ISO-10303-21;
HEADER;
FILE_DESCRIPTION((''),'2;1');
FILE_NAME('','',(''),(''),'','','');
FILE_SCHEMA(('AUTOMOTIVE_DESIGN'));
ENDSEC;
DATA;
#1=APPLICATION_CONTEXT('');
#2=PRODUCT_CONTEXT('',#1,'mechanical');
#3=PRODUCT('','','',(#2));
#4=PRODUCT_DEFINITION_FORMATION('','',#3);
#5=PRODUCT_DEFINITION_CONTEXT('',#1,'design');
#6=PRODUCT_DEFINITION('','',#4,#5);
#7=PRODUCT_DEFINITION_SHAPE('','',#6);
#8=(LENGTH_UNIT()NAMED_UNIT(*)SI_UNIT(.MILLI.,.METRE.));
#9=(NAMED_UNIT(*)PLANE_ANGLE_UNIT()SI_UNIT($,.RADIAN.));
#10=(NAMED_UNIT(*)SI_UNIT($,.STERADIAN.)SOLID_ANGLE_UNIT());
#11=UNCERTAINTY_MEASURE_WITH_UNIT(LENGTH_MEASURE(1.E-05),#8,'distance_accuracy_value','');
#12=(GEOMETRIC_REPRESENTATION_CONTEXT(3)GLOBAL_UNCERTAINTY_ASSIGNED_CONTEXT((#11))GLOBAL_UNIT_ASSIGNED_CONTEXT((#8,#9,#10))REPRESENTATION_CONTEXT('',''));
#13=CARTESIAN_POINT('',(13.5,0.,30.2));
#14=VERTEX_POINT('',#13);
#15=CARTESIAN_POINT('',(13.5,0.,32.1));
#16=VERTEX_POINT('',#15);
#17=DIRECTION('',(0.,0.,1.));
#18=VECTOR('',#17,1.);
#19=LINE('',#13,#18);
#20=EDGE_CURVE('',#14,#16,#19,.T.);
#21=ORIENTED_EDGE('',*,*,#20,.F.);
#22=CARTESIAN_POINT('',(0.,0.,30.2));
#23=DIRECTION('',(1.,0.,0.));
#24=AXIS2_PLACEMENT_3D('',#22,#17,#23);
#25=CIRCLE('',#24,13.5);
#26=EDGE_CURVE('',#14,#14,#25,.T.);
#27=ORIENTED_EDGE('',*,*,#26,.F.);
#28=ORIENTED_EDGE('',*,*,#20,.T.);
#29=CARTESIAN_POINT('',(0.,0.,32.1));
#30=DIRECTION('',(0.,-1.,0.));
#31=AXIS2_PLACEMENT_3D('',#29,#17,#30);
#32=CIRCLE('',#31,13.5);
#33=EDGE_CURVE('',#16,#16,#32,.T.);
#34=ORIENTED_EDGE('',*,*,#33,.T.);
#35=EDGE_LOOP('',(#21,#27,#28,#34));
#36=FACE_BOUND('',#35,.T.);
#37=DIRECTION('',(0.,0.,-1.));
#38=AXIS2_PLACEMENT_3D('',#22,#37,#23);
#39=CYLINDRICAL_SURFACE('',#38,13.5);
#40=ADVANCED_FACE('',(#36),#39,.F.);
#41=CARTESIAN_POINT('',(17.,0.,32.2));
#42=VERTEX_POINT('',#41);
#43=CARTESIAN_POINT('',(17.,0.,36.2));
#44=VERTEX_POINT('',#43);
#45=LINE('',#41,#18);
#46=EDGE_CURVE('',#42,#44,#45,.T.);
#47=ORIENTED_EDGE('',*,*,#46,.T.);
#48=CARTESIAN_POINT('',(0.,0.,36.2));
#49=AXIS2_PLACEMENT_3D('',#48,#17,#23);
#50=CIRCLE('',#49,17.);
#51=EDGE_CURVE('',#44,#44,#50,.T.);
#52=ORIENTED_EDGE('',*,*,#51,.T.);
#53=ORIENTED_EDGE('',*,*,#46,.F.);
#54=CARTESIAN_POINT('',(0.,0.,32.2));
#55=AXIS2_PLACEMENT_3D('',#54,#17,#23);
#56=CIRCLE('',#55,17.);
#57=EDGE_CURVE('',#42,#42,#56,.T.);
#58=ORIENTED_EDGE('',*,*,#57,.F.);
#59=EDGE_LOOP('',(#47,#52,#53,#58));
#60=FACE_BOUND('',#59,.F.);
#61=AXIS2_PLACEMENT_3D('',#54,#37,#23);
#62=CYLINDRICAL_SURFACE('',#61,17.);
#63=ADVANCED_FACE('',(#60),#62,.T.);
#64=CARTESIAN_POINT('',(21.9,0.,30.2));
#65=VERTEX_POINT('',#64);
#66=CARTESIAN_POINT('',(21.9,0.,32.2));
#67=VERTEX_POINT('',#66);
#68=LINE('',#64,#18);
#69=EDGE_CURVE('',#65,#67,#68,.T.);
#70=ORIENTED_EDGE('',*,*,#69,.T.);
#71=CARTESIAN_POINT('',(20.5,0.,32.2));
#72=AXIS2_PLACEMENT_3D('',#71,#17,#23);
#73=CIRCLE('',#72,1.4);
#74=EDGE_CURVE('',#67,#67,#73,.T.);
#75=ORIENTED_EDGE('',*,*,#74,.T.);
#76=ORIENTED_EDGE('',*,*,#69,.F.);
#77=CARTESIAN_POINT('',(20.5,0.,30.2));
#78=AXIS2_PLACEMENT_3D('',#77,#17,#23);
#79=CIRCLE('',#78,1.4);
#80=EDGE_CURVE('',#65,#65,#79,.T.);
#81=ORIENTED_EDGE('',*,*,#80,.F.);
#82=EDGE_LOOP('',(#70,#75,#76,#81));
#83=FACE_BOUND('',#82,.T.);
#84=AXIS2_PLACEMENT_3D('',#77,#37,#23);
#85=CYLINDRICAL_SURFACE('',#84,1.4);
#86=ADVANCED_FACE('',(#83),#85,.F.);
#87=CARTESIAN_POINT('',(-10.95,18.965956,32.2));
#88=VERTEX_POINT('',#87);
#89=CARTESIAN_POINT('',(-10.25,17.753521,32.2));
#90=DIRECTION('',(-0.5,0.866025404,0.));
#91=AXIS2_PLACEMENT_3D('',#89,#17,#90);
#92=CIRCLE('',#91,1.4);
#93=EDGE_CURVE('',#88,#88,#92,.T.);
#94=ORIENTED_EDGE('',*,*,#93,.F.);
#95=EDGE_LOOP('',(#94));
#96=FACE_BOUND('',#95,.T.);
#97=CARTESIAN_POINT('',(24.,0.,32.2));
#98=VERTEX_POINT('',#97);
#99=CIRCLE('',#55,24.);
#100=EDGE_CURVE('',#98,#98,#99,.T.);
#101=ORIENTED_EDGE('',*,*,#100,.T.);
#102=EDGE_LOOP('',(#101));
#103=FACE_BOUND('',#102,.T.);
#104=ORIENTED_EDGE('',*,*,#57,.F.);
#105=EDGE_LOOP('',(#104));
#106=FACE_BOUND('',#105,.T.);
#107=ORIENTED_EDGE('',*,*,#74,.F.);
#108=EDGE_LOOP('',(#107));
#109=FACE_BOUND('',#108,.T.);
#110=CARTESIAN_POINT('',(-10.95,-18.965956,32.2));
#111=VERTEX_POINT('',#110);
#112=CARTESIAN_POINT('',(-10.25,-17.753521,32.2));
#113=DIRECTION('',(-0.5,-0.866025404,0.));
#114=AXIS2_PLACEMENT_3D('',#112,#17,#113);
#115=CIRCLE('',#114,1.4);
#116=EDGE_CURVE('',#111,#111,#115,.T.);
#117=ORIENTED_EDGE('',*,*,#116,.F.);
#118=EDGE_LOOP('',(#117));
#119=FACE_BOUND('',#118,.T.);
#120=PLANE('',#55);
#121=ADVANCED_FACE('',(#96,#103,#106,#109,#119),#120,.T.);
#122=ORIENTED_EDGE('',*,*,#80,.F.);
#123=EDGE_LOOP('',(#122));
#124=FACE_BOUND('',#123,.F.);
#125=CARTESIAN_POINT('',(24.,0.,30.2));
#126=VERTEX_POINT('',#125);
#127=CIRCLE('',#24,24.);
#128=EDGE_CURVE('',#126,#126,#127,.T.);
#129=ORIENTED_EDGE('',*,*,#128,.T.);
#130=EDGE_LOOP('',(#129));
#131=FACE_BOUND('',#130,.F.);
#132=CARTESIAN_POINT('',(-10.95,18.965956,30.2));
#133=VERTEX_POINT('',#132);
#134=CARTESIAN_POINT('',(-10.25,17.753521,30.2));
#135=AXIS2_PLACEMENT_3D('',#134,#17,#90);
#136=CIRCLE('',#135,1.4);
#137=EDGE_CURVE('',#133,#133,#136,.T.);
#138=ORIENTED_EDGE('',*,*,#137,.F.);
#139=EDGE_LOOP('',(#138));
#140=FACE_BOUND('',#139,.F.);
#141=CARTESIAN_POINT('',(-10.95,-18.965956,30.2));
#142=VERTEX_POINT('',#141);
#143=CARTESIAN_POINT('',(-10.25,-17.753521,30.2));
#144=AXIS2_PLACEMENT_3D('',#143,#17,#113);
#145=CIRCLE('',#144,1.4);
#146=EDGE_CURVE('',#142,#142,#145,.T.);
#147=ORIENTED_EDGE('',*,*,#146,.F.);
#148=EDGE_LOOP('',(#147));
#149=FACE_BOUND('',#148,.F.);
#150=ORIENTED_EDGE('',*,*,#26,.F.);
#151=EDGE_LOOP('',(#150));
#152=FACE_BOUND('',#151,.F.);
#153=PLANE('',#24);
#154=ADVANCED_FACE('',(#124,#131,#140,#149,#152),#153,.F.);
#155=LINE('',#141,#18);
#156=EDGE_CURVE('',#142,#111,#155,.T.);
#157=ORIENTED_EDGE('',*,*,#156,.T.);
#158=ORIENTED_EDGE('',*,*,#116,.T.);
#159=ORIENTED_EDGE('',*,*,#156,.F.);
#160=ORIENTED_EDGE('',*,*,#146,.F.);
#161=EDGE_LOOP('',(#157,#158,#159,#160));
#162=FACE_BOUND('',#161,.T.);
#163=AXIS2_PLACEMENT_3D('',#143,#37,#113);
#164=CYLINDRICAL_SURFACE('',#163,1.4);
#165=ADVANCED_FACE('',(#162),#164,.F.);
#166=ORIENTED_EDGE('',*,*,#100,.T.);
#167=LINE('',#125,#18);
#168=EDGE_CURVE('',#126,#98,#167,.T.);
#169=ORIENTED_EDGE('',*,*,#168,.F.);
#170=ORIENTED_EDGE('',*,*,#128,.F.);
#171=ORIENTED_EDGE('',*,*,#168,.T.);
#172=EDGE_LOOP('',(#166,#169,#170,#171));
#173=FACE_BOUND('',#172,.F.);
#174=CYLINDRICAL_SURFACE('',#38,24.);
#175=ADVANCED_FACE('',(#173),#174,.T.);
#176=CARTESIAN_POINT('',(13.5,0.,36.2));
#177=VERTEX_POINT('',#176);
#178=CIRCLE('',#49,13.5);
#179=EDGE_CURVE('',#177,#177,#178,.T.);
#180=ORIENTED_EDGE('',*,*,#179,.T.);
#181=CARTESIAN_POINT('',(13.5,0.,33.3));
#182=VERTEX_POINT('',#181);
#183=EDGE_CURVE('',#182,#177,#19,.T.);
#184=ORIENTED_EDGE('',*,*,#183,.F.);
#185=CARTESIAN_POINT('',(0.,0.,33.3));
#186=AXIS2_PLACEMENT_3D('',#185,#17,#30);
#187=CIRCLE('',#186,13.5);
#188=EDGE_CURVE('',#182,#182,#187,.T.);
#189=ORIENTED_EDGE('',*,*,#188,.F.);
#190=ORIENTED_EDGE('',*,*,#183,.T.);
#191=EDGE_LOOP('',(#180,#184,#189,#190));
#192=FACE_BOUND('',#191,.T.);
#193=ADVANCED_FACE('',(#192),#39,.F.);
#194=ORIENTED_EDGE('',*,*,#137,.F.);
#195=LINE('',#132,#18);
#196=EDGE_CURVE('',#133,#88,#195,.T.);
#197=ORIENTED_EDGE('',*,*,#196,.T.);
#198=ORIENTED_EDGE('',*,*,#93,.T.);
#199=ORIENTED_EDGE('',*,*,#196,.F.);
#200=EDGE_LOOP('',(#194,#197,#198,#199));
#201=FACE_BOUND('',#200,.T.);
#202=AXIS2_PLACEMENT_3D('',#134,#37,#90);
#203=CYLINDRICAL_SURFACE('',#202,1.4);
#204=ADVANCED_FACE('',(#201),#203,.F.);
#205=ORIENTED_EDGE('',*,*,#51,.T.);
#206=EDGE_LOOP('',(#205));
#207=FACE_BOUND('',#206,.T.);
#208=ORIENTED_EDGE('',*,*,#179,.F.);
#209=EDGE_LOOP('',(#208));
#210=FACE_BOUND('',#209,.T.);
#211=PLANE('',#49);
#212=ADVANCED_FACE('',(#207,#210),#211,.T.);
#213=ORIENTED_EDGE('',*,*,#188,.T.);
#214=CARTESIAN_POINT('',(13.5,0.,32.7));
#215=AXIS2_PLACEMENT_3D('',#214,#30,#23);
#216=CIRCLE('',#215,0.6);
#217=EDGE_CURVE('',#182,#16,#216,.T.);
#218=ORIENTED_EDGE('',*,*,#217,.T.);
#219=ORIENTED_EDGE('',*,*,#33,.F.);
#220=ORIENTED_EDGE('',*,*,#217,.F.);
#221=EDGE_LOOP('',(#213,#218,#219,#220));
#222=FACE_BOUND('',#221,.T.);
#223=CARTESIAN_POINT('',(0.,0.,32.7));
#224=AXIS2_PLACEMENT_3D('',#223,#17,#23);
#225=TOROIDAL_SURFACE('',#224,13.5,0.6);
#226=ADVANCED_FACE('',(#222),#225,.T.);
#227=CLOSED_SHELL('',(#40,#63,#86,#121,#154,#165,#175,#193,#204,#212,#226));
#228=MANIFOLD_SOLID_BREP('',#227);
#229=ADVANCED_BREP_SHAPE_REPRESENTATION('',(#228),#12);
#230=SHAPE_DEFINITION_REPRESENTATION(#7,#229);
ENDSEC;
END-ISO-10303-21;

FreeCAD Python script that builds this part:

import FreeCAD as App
import Part
import Sketcher
from FreeCAD import Vector
Q = App.Units.Quantity

doc = App.newDocument("Part")
params = doc.addObject("Spreadsheet::Sheet", "Params")
for row, (alias, value) in enumerate([
    ("sketch1_diameter", "1.2 mm"),
    ("revolution_angle", "360 deg"),
    ("sketch2_diameter", "2.8 mm"),
    ("pad1_length", "2 mm"),
    ("sketch3_diameter", "27 mm"),
    ("pad2_length", "6 mm"),
    ("sketch4_diameter", "48 mm"),
    ("pad3_length", "2 mm"),
    ("sketch5_diameter", "34 mm"),
    ("pad4_length", "4 mm"),
], start=1):
    params.set(f"A{row}", alias)
    params.set(f"B{row}", "=" + value)
    params.setAlias(f"B{row}", alias)

body = doc.addObject("PartDesign::Body", "Body")

sketch1 = body.newObject("Sketcher::SketchObject", "Sketch")
sketch1.AttachmentSupport = (doc.getObject("XZ_Plane"), [""])
sketch1.MapMode = "FlatFace"
sketch1.addGeometry(Part.Circle(Vector(13.5, 2.5, 0), Vector(0, 0, 1), 0.6), False)
sketch1.addConstraint(Sketcher.Constraint("Diameter", 0, Q("1.2 mm")))
sketch1.addConstraint(Sketcher.Constraint("DistanceX", -1, 1, 0, 3, Q("13.5 mm")))
sketch1.addConstraint(Sketcher.Constraint("DistanceY", -1, 1, 0, 3, Q("2.5 mm")))
sketch1.setExpression("Constraints[0]", "Params.sketch1_diameter")
revolution = body.newObject("PartDesign::Revolution", "Revolution")
revolution.Profile = sketch1
revolution.ReferenceAxis = (sketch1, ["V_Axis"])
revolution.setExpression("Angle", "Params.revolution_angle")
body2 = doc.addObject("PartDesign::Body", "Body001")

sketch2 = body2.newObject("Sketcher::SketchObject", "Sketch001")
sketch2.AttachmentSupport = (doc.getObject("XY_Plane001"), [""])
sketch2.MapMode = "FlatFace"
sketch2.addGeometry(Part.Circle(Vector(20.5, 0, 0), Vector(0, 0, 1), 1.4), False)
sketch2.addConstraint(Sketcher.Constraint("PointOnObject", 0, 3, -1))
sketch2.addConstraint(Sketcher.Constraint("Diameter", 0, Q("2.8 mm")))
sketch2.addConstraint(Sketcher.Constraint("DistanceX", -1, 1, 0, 3, Q("20.5 mm")))
sketch2.setExpression("Constraints[1]", "Params.sketch2_diameter")
pad1 = body2.newObject("PartDesign::Pad", "Pad")
pad1.Profile = sketch2
pad1.setExpression("Length", "Params.pad1_length")
body3 = doc.addObject("PartDesign::Body", "Body002")
body3.AllowCompound = True
doc.recompute()

body3.BaseFeature = body2
doc.recompute()

body4 = doc.addObject("PartDesign::Body", "Body003")
body4.BaseFeature = body2
body4.Placement = App.Placement(Vector(0, 0, 0), App.Rotation(Vector(0, 0, 1), 120))
boolean = body3.newObject("PartDesign::Boolean", "Boolean")
boolean.Type = "Fuse"
boolean.addObjects([body4])
doc.recompute()

body2.Placement = App.Placement(Vector(0, 0, 0), App.Rotation(Vector(0, 0, 1), 240))
boolean2 = body3.newObject("PartDesign::Boolean", "Boolean001")
boolean2.Type = "Fuse"
boolean2.addObjects([body2])
body5 = doc.addObject("PartDesign::Body", "Body004")

sketch3 = body5.newObject("Sketcher::SketchObject", "Sketch002")
sketch3.AttachmentSupport = (doc.getObject("XY_Plane004"), [""])
sketch3.MapMode = "FlatFace"
sketch3.addGeometry(Part.Circle(Vector(0, 0, 0), Vector(0, 0, 1), 14), False)
sketch3.addConstraint(Sketcher.Constraint("Coincident", 0, 3, -1, 1))
sketch3.addConstraint(Sketcher.Constraint("Diameter", 0, Q("27 mm")))
sketch3.setExpression("Constraints[1]", "Params.sketch3_diameter")
pad2 = body5.newObject("PartDesign::Pad", "Pad001")
pad2.Profile = sketch3
pad2.setExpression("Length", "Params.pad2_length")
body6 = doc.addObject("PartDesign::Body", "Body005")

sketch4 = body6.newObject("Sketcher::SketchObject", "Sketch003")
sketch4.AttachmentSupport = (doc.getObject("XY_Plane005"), [""])
sketch4.MapMode = "FlatFace"
sketch4.addGeometry(Part.Circle(Vector(0, 0, 0), Vector(0, 0, 1), 24), False)
sketch4.addConstraint(Sketcher.Constraint("Coincident", 0, 3, -1, 1))
sketch4.addConstraint(Sketcher.Constraint("Diameter", 0, Q("48 mm")))
sketch4.setExpression("Constraints[1]", "Params.sketch4_diameter")
pad3 = body6.newObject("PartDesign::Pad", "Pad002")
pad3.Profile = sketch4
pad3.setExpression("Length", "Params.pad3_length")
body7 = doc.addObject("PartDesign::Body", "Body006")

sketch5 = body7.newObject("Sketcher::SketchObject", "Sketch004")
sketch5.AttachmentSupport = (doc.getObject("XY_Plane006"), [""])
sketch5.MapMode = "FlatFace"
sketch5.AttachmentOffset = App.Placement(Vector(0, 0, 2), App.Rotation())
sketch5.addGeometry(Part.Circle(Vector(0, 0, 0), Vector(0, 0, 1), 17), False)
sketch5.addConstraint(Sketcher.Constraint("Coincident", 0, 3, -1, 1))
sketch5.addConstraint(Sketcher.Constraint("Diameter", 0, Q("34 mm")))
sketch5.setExpression("Constraints[1]", "Params.sketch5_diameter")
pad4 = body7.newObject("PartDesign::Pad", "Pad003")
pad4.Profile = sketch5
pad4.setExpression("Length", "Params.pad4_length")
doc.recompute()

boolean3 = body7.newObject("PartDesign::Boolean", "Boolean002")
boolean3.Type = "Fuse"
boolean3.addObjects([body6])
doc.recompute()

boolean4 = body7.newObject("PartDesign::Boolean", "Boolean003")
boolean4.Type = "Cut"
boolean4.addObjects([body5])
doc.recompute()

boolean5 = body7.newObject("PartDesign::Boolean", "Boolean004")
boolean5.Type = "Cut"
boolean5.addObjects([body3])
doc.recompute()

boolean6 = body7.newObject("PartDesign::Boolean", "Boolean005")
boolean6.Type = "Fuse"
boolean6.addObjects([body])
body8 = doc.addObject("PartDesign::Body", "Body007")
doc.recompute()

body7.Placement = App.Placement(Vector(0, 0, 30.2), App.Rotation(Vector(0, 0, 1), 0))
boolean7 = body8.newObject("PartDesign::Boolean", "Boolean006")
boolean7.Type = "Fuse"
boolean7.addObjects([body7])

doc.recompute()
